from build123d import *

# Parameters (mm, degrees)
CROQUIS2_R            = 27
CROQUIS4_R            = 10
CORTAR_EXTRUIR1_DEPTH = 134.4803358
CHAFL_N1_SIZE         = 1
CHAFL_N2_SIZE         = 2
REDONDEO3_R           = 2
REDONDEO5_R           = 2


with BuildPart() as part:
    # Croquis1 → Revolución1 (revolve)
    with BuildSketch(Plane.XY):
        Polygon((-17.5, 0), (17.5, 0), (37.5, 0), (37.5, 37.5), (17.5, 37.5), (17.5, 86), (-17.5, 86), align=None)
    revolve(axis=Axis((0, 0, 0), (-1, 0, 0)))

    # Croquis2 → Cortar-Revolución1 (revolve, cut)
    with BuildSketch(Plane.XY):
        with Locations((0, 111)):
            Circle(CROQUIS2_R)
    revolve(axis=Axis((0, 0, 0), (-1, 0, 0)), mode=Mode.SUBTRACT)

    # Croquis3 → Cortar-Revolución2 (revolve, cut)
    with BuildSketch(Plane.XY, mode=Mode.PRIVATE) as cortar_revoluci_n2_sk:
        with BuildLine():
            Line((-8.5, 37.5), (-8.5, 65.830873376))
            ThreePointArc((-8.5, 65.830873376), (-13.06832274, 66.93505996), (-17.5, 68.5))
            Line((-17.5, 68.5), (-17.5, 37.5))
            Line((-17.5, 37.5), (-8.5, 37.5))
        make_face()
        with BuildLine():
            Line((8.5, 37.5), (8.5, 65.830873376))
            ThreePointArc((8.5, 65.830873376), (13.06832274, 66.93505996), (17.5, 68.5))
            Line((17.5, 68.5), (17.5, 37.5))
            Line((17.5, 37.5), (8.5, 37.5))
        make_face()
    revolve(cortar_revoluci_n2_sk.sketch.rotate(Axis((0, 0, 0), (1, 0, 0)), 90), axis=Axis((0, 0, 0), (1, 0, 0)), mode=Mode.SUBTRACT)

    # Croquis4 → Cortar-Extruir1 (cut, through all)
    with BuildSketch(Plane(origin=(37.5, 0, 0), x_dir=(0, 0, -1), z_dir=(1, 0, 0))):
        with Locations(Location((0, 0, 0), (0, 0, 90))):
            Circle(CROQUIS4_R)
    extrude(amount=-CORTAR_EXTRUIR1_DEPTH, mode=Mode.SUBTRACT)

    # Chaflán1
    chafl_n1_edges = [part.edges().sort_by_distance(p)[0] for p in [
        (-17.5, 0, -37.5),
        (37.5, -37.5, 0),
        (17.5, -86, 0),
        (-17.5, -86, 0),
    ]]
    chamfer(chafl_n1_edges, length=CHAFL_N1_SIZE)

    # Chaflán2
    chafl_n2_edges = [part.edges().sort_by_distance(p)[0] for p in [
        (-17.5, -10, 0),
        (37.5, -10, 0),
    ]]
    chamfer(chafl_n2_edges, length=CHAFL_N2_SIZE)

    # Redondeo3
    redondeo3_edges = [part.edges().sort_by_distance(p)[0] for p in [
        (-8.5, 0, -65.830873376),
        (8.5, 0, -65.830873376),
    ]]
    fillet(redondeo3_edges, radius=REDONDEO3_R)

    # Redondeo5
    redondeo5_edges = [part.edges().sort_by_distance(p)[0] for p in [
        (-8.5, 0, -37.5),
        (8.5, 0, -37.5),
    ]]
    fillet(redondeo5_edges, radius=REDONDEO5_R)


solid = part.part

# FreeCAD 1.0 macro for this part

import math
import FreeCAD as App
import Part
import Sketcher
Q = App.Units.Quantity


def edges_at(feature, points):
    """Names of the edges that pass closest to the given points."""
    edges = feature.Shape.Edges
    near = lambda p: min(range(len(edges)), key=lambda i: edges[i].distToShape(Part.Vertex(*p))[0])
    return sorted({f"Edge{near(p) + 1}" for p in points})

doc = App.newDocument("Part")
body = doc.addObject("PartDesign::Body", "Body")

# Sketch on XY plane
sketch1 = body.newObject("Sketcher::SketchObject", "Sketch")
sketch1.AttachmentSupport = (doc.getObject("XY_Plane"), [""])
sketch1.MapMode = "FlatFace"
sketch1.addGeometry([
    Part.LineSegment(App.Vector(-18, 0, 0), App.Vector(38, 0, 0)),  # 0
    Part.LineSegment(App.Vector(38, 0, 0), App.Vector(38, 38, 0)),  # 1
    Part.LineSegment(App.Vector(38, 38, 0), App.Vector(18, 38, 0)),  # 2
    Part.LineSegment(App.Vector(18, 38, 0), App.Vector(18, 86, 0)),  # 3
    Part.LineSegment(App.Vector(18, 86, 0), App.Vector(-18, 86, 0)),  # 4
    Part.LineSegment(App.Vector(-18, 86, 0), App.Vector(-18, 0, 0)),  # 5
], False)
sketch1.addConstraint([
    Sketcher.Constraint("Coincident", 0, 2, 1, 1),
    Sketcher.Constraint("Coincident", 1, 2, 2, 1),
    Sketcher.Constraint("Coincident", 2, 2, 3, 1),
    Sketcher.Constraint("Coincident", 3, 2, 4, 1),
    Sketcher.Constraint("Coincident", 4, 2, 5, 1),
    Sketcher.Constraint("Coincident", 5, 2, 0, 1),
    Sketcher.Constraint("Horizontal", 0),
    Sketcher.Constraint("Vertical", 1),
    Sketcher.Constraint("Horizontal", 2),
    Sketcher.Constraint("Vertical", 3),
    Sketcher.Constraint("Horizontal", 4),
    Sketcher.Constraint("Vertical", 5),
    Sketcher.Constraint("PointOnObject", 0, 2, -1),
    Sketcher.Constraint("DistanceX", 0, 1, 0, 2, Q("55 mm")),
    Sketcher.Constraint("DistanceX", 2, 2, 2, 1, Q("20 mm")),
    Sketcher.Constraint("DistanceY", 5, 2, 5, 1, Q("86 mm")),
    Sketcher.Constraint("DistanceY", 1, 1, 1, 2, Q("37.5 mm")),
    Sketcher.Constraint("DistanceX", -1, 1, 0, 2, Q("37.5 mm")),
])
revolution = body.newObject("PartDesign::Revolution", "Revolution")
revolution.Profile = sketch1
revolution.ReferenceAxis = (sketch1, ["H_Axis"])
revolution.Angle = 360

# Sketch on XY plane
sketch2 = body.newObject("Sketcher::SketchObject", "Sketch001")
sketch2.AttachmentSupport = (doc.getObject("XY_Plane"), [""])
sketch2.MapMode = "FlatFace"
sketch2.addGeometry(Part.Circle(App.Vector(0, 111, 0), App.Vector(0, 0, 1), 27), False)
sketch2.addConstraint([
    Sketcher.Constraint("PointOnObject", 0, 3, -2),
    Sketcher.Constraint("Diameter", 0, Q("54 mm")),
    Sketcher.Constraint("DistanceY", -1, 1, 0, 3, Q("111 mm")),
])
groove = body.newObject("PartDesign::Groove", "Groove")
groove.Profile = sketch2
groove.ReferenceAxis = (sketch2, ["H_Axis"])
groove.Angle = 360

# Sketch on XY plane
sketch3 = body.newObject("Sketcher::SketchObject", "Sketch002")
sketch3.AttachmentSupport = (doc.getObject("XY_Plane"), [""])
sketch3.MapMode = "FlatFace"
sketch3.addGeometry([
    Part.LineSegment(App.Vector(-8, 38, 0), App.Vector(-8, 66, 0)),  # 0
    Part.ArcOfCircle(Part.Circle(App.Vector(0, 111, 0), App.Vector(0, 0, 1), 46), math.radians(-112.38), math.radians(-100.66)),  # 1
    Part.LineSegment(App.Vector(-18, 68, 0), App.Vector(-18, 38, 0)),  # 2
    Part.LineSegment(App.Vector(-18, 38, 0), App.Vector(-8, 38, 0)),  # 3
    Part.LineSegment(App.Vector(8, 66, 0), App.Vector(8, 38, 0)),  # 4
    Part.LineSegment(App.Vector(8, 38, 0), App.Vector(18, 38, 0)),  # 5
    Part.LineSegment(App.Vector(18, 38, 0), App.Vector(18, 68, 0)),  # 6
    Part.ArcOfCircle(Part.Circle(App.Vector(0, 111, 0), App.Vector(0, 0, 1), 46), math.radians(-79.34), math.radians(-67.62)),  # 7
], False)
sketch3.addConstraint([
    Sketcher.Constraint("Coincident", 0, 2, 1, 2),
    Sketcher.Constraint("Coincident", 1, 1, 2, 1),
    Sketcher.Constraint("Coincident", 2, 2, 3, 1),
    Sketcher.Constraint("Coincident", 3, 2, 0, 1),
    Sketcher.Constraint("Coincident", 4, 2, 5, 1),
    Sketcher.Constraint("Coincident", 5, 2, 6, 1),
    Sketcher.Constraint("Coincident", 6, 2, 7, 2),
    Sketcher.Constraint("Coincident", 7, 1, 4, 1),
    Sketcher.Constraint("Vertical", 0),
    Sketcher.Constraint("Vertical", 2),
    Sketcher.Constraint("Horizontal", 3),
    Sketcher.Constraint("Vertical", 4),
    Sketcher.Constraint("Horizontal", 5),
    Sketcher.Constraint("Vertical", 6),
    Sketcher.Constraint("Coincident", 7, 3, 1, 3),
    Sketcher.Constraint("Equal", 1, 7),
    Sketcher.Constraint("Symmetric", 3, 2, 4, 2, -2),
    Sketcher.Constraint("Symmetric", 1, 1, 6, 2, -2),
    Sketcher.Constraint("DistanceX", 3, 1, 3, 2, Q("9 mm")),
    Sketcher.Constraint("DistanceY", 2, 2, 2, 1, Q("31 mm")),
    Sketcher.Constraint("DistanceY", -1, 1, 1, 3, Q("111 mm")),
    Sketcher.Constraint("DistanceX", 3, 2, 4, 2, Q("17 mm")),
    Sketcher.Constraint("DistanceY", -1, 1, 1, 1, Q("68.5 mm")),
])
groove2 = body.newObject("PartDesign::Groove", "Groove001")
groove2.Profile = sketch3
groove2.ReferenceAxis = (sketch3, ["H_Axis"])
groove2.Angle = 360

# Sketch on YZ plane
sketch4 = body.newObject("Sketcher::SketchObject", "Sketch003")
sketch4.AttachmentSupport = (doc.getObject("YZ_Plane"), [""])
sketch4.MapMode = "FlatFace"
sketch4.AttachmentOffset = App.Placement(App.Vector(0, 0, 37.5), App.Rotation())
sketch4.addGeometry(Part.Circle(App.Vector(0, 0, 0), App.Vector(0, 0, 1), 10), False)
sketch4.addConstraint([
    Sketcher.Constraint("Coincident", 0, 3, -1, 1),
    Sketcher.Constraint("Diameter", 0, Q("20 mm")),
])
pocket1 = body.newObject("PartDesign::Pocket", "Pocket")
pocket1.Profile = sketch4
pocket1.Type = "ThroughAll"
doc.recompute()

chamfer = body.newObject("PartDesign::Chamfer", "Chamfer")
chamfer.Base = (pocket1, edges_at(pocket1, [
    (-17.5, 0, -37.5),
    (37.5, -37.5, 0),
    (17.5, -86, 0),
    (-17.5, -86, 0),
]))
chamfer.Size = 1
doc.recompute()

chamfer2 = body.newObject("PartDesign::Chamfer", "Chamfer001")
chamfer2.Base = (chamfer, edges_at(chamfer, [(-17.5, -10, 0), (37.5, -10, 0)]))
chamfer2.Size = 2
doc.recompute()

fillet = body.newObject("PartDesign::Fillet", "Fillet")
fillet.Base = (chamfer2, edges_at(chamfer2, [(-8.5, 0, -65.831), (8.5, 0, -65.831)]))
fillet.Radius = 2
doc.recompute()

fillet2 = body.newObject("PartDesign::Fillet", "Fillet001")
fillet2.Base = (fillet, edges_at(fillet, [(-8.5, 0, -37.5), (8.5, 0, -37.5)]))
fillet2.Radius = 2

doc.recompute()
